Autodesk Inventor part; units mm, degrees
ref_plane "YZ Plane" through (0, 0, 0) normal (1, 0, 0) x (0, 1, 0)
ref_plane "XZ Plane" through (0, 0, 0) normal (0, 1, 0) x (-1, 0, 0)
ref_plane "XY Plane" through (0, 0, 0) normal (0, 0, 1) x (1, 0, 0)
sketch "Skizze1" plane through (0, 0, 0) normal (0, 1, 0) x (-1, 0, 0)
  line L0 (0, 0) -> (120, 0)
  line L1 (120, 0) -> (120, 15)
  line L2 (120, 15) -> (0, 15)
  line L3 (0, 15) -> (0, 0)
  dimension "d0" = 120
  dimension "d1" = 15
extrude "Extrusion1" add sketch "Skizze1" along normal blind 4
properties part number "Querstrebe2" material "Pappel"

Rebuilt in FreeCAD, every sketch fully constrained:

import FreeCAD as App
import Part
import Sketcher
Q = App.Units.Quantity

doc = App.newDocument("Part")
body = doc.addObject("PartDesign::Body", "Body")

sketch1 = body.newObject("Sketcher::SketchObject", "Sketch")
sketch1.AttachmentSupport = (doc.getObject("XZ_Plane"), [""])
sketch1.MapMode = "FlatFace"
sketch1.addGeometry([
    Part.LineSegment(App.Vector(0, 15, 0), App.Vector(0, 0, 0)),
    Part.LineSegment(App.Vector(0, 0, 0), App.Vector(-120, 0, 0)),
    Part.LineSegment(App.Vector(-120, 0, 0), App.Vector(-120, 15, 0)),
    Part.LineSegment(App.Vector(-120, 15, 0), App.Vector(0, 15, 0)),
], False)
sketch1.addConstraint([
    Sketcher.Constraint("Coincident", 0, 2, 1, 1),
    Sketcher.Constraint("Coincident", 1, 2, 2, 1),
    Sketcher.Constraint("Coincident", 2, 2, 3, 1),
    Sketcher.Constraint("Coincident", 3, 2, 0, 1),
    Sketcher.Constraint("Vertical", 0),
    Sketcher.Constraint("Horizontal", 1),
    Sketcher.Constraint("Vertical", 2),
    Sketcher.Constraint("Horizontal", 3),
    Sketcher.Constraint("Coincident", 0, 2, -1, 1),
    Sketcher.Constraint("DistanceX", 1, 2, 1, 1, Q("120 mm")),
    Sketcher.Constraint("DistanceY", 0, 2, 0, 1, Q("15 mm")),
])
pad1 = body.newObject("PartDesign::Pad", "Pad")
pad1.Profile = sketch1
pad1.Length = 4
pad1.Reversed = True

doc.recompute()
